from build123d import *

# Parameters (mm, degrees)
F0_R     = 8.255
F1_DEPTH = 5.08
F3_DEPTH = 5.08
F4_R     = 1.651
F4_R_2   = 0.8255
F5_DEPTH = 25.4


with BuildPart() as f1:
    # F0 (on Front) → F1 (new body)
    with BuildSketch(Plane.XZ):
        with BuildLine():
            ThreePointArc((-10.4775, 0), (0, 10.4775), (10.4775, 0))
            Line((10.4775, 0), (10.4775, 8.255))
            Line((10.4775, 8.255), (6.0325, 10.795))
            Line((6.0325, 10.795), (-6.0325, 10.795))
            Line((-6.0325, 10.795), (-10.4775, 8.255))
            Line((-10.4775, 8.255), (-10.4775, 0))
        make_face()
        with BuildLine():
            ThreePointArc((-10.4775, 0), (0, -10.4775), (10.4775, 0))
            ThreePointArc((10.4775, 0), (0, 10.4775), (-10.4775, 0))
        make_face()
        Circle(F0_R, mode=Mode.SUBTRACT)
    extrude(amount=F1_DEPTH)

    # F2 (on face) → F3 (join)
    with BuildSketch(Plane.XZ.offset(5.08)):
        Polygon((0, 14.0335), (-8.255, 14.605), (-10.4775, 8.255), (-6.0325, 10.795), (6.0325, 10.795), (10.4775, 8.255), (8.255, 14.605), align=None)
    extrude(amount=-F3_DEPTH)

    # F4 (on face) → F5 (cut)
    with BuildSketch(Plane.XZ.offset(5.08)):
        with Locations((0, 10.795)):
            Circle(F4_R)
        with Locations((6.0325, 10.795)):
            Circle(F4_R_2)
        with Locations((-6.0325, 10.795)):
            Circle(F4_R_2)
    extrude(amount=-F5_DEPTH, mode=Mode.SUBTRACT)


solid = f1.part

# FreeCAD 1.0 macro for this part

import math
import FreeCAD as App
import Part
import Sketcher

V = App.Vector
Q = App.Units.Quantity


def add_polygon(sketch, points):
    """Adds a closed chain of lines whose ends are joined by coincident constraints."""
    first, n = sketch.GeometryCount, len(points)
    for a, b in zip(points, points[1:] + points[:1]):
        sketch.addGeometry(Part.LineSegment(App.Vector(*a, 0), App.Vector(*b, 0)), False)
    for i in range(n):
        sketch.addConstraint(Sketcher.Constraint("Coincident", first + i, 2, first + (i + 1) % n, 1))

doc = App.newDocument("Part")
body = doc.addObject("PartDesign::Body", "Body")

sketch1 = doc.addObject("Sketcher::SketchObject", "Sketch")
body.addObject(sketch1)
sketch1.AttachmentSupport = (doc.XZ_Plane, [""])
sketch1.MapMode = "FlatFace"
sketch1.addGeometry([
    Part.LineSegment(V(10, 0, 0), V(10, 8, 0)),
    Part.LineSegment(V(10, 8, 0), V(6, 11, 0)),
    Part.LineSegment(V(6, 11, 0), V(-6, 11, 0)),
    Part.LineSegment(V(-6, 11, 0), V(-10, 8, 0)),
    Part.LineSegment(V(-10, 8, 0), V(-10, 0, 0)),
    Part.ArcOfCircle(Part.Circle(V(0, 0, 0), V(0, 0, 1), 10), math.radians(180), math.radians(360)),
    Part.Circle(V(0, 0, 0), V(0, 0, 1), 8),
], False)
sketch1.addConstraint([
    Sketcher.Constraint("Coincident", 0, 2, 1, 1),
    Sketcher.Constraint("Coincident", 1, 2, 2, 1),
    Sketcher.Constraint("Coincident", 2, 2, 3, 1),
    Sketcher.Constraint("Coincident", 3, 2, 4, 1),
    Sketcher.Constraint("Tangent", 4, 2, 5, 1),
    Sketcher.Constraint("Tangent", 5, 2, 0, 1),
    Sketcher.Constraint("Vertical", 0),
    Sketcher.Constraint("Horizontal", 2),
    Sketcher.Constraint("Vertical", 4),
    Sketcher.Constraint("Coincident", 5, 3, -1, 1),
    Sketcher.Constraint("Coincident", 6, 3, -1, 1),
    Sketcher.Constraint("Horizontal", 0, 2, 3, 2),
    Sketcher.Constraint("Equal", 1, 3),
    Sketcher.Constraint("Diameter", 6, Q("0.65 in")),
    Sketcher.Constraint("Radius", 5, Q("0.4125 in")),
    Sketcher.Constraint("DistanceY", 0, 2, 1, 2, Q("0.1 in")),
    Sketcher.Constraint("DistanceX", 2, 2, 2, 1, Q("0.475 in")),
    Sketcher.Constraint("DistanceY", 0, 1, 0, 2, Q("0.325 in")),
])
pad1 = doc.addObject("PartDesign::Pad", "Pad")
body.addObject(pad1)
pad1.Profile = sketch1
pad1.Length = Q("0.2 in")

sketch2 = doc.addObject("Sketcher::SketchObject", "Sketch001")
body.addObject(sketch2)
sketch2.AttachmentSupport = (doc.XZ_Plane, [""])
sketch2.MapMode = "FlatFace"
sketch2.AttachmentOffset = App.Placement(V(0, 0, 0.2 * 25.4), App.Rotation())
add_polygon(sketch2, [(0, 14), (-8, 15), (-10, 8), (-6, 11), (6, 11), (10, 8), (8, 15)])
sketch2.addConstraint([
    Sketcher.Constraint("Horizontal", 3),
    Sketcher.Constraint("Symmetric", 1, 2, 4, 2, -2),
    Sketcher.Constraint("Symmetric", 0, 2, 5, 2, -2),
    Sketcher.Constraint("PointOnObject", 6, 2, -2),
    Sketcher.Constraint("Equal", 2, 4),
    Sketcher.Constraint("DistanceY", 1, 2, 2, 2, Q("0.1 in")),
    Sketcher.Constraint("DistanceX", 3, 1, 3, 2, Q("0.475 in")),
    Sketcher.Constraint("DistanceY", 1, 2, 0, 2, Q("0.25 in")),
    Sketcher.Constraint("DistanceX", 1, 2, 3, 2, Q("0.65 in")),
    Sketcher.Constraint("DistanceX", 0, 2, 5, 2, Q("0.65 in")),
    Sketcher.Constraint("DistanceY", -1, 1, 0, 2, Q("0.575 in")),
    Sketcher.Constraint("DistanceY", -1, 1, 6, 2, Q("0.5525 in")),
])
pad2 = doc.addObject("PartDesign::Pad", "Pad001")
body.addObject(pad2)
pad2.Profile = sketch2
pad2.Length = Q("0.2 in")
pad2.Reversed = True

sketch3 = doc.addObject("Sketcher::SketchObject", "Sketch002")
body.addObject(sketch3)
sketch3.AttachmentSupport = (doc.XZ_Plane, [""])
sketch3.MapMode = "FlatFace"
sketch3.AttachmentOffset = App.Placement(V(0, 0, 0.2 * 25.4), App.Rotation())
sketch3.addGeometry([
    Part.Circle(V(0, 10.8, 0), V(0, 0, 1), 1.7),
    Part.Circle(V(6, 10.8, 0), V(0, 0, 1), 0.8),
    Part.Circle(V(-6, 10.8, 0), V(0, 0, 1), 0.8),
], False)
sketch3.addConstraint([
    Sketcher.Constraint("Equal", 1, 2),
    Sketcher.Constraint("Symmetric", 1, 3, 2, 3, -2),
    Sketcher.Constraint("PointOnObject", 0, 3, -2),
    Sketcher.Constraint("Horizontal", 0, 3, 1, 3),
    Sketcher.Constraint("Diameter", 0, Q("0.13 in")),
    Sketcher.Constraint("Diameter", 1, Q("0.065 in")),
    Sketcher.Constraint("DistanceY", -1, 1, 0, 3, Q("0.425 in")),
    Sketcher.Constraint("DistanceX", 2, 3, 1, 3, Q("0.475 in")),
])
pocket1 = doc.addObject("PartDesign::Pocket", "Pocket")
body.addObject(pocket1)
pocket1.Profile = sketch3
pocket1.Length = Q("1 in")

doc.recompute()
